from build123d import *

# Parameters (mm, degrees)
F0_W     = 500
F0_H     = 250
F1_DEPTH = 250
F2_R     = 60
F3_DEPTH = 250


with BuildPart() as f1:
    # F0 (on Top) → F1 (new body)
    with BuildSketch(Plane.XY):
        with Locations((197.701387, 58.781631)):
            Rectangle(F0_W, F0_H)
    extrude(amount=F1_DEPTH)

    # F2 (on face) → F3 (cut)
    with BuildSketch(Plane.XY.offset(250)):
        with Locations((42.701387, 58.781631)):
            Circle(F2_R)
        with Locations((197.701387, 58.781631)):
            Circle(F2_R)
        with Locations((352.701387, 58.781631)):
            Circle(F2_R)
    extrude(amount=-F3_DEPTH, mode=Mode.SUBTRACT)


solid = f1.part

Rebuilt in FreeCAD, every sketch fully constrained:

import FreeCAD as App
import Part
import Sketcher


def add_polygon(sketch, points):
    """Adds a closed chain of lines whose ends are joined by coincident constraints."""
    first, n = sketch.GeometryCount, len(points)
    for a, b in zip(points, points[1:] + points[:1]):
        sketch.addGeometry(Part.LineSegment(App.Vector(*a, 0), App.Vector(*b, 0)), False)
    for i in range(n):
        sketch.addConstraint(Sketcher.Constraint("Coincident", first + i, 2, first + (i + 1) % n, 1))

doc = App.newDocument("Part")
body = doc.addObject("PartDesign::Body", "Body")

# Sketch on XY plane
sketch1 = body.newObject("Sketcher::SketchObject", "Sketch")
sketch1.AttachmentSupport = (doc.getObject("XY_Plane"), [""])
sketch1.MapMode = "FlatFace"
add_polygon(sketch1, [(-52.298613, 183.781631), (-52.298613, -66.218369), (447.701387, -66.218369), (447.701387, 183.781631)])  # lines 0-3
sketch1.addConstraint(Sketcher.Constraint("Vertical", 0))
sketch1.addConstraint(Sketcher.Constraint("Horizontal", 1))
sketch1.addConstraint(Sketcher.Constraint("Vertical", 2))
sketch1.addConstraint(Sketcher.Constraint("Horizontal", 3))
sketch1.addConstraint(Sketcher.Constraint("DistanceX", 1, 1, 1, 2, 500.0))
sketch1.addConstraint(Sketcher.Constraint("DistanceY", 0, 2, 0, 1, 250.0))
sketch1.addConstraint(Sketcher.Constraint("DistanceY", 0, 2, -1, 1, 66.218369))
sketch1.addConstraint(Sketcher.Constraint("DistanceX", 0, 2, -1, 1, 52.298613))
pad1 = body.newObject("PartDesign::Pad", "Pad")
pad1.Profile = sketch1
pad1.Length = 250

# Sketch on XY plane
sketch2 = body.newObject("Sketcher::SketchObject", "Sketch001")
sketch2.AttachmentSupport = (doc.getObject("XY_Plane"), [""])
sketch2.MapMode = "FlatFace"
sketch2.AttachmentOffset = App.Placement(App.Vector(0, 0, 250), App.Rotation())
sketch2.addGeometry(Part.Circle(App.Vector(42.701387, 58.781631, 0), App.Vector(0, 0, 1), 60), False)
sketch2.addGeometry(Part.Circle(App.Vector(197.701387, 58.781631, 0), App.Vector(0, 0, 1), 60), False)
sketch2.addGeometry(Part.Circle(App.Vector(352.701387, 58.781631, 0), App.Vector(0, 0, 1), 60), False)
sketch2.addConstraint(Sketcher.Constraint("Equal", 0, 1))
sketch2.addConstraint(Sketcher.Constraint("Equal", 1, 2))
sketch2.addConstraint(Sketcher.Constraint("Horizontal", 0, 3, 1, 3))
sketch2.addConstraint(Sketcher.Constraint("Horizontal", 1, 3, 2, 3))
sketch2.addConstraint(Sketcher.Constraint("Diameter", 0, 120.0))
sketch2.addConstraint(Sketcher.Constraint("DistanceX", 0, 3, 1, 3, 155.0))
sketch2.addConstraint(Sketcher.Constraint("DistanceX", 1, 3, 2, 3, 155.0))
sketch2.addConstraint(Sketcher.Constraint("DistanceY", -1, 1, 0, 3, 58.781631))
sketch2.addConstraint(Sketcher.Constraint("DistanceX", -1, 1, 0, 3, 42.701387))
pocket1 = body.newObject("PartDesign::Pocket", "Pocket")
pocket1.Profile = sketch2
pocket1.Length = 250

doc.recompute()
